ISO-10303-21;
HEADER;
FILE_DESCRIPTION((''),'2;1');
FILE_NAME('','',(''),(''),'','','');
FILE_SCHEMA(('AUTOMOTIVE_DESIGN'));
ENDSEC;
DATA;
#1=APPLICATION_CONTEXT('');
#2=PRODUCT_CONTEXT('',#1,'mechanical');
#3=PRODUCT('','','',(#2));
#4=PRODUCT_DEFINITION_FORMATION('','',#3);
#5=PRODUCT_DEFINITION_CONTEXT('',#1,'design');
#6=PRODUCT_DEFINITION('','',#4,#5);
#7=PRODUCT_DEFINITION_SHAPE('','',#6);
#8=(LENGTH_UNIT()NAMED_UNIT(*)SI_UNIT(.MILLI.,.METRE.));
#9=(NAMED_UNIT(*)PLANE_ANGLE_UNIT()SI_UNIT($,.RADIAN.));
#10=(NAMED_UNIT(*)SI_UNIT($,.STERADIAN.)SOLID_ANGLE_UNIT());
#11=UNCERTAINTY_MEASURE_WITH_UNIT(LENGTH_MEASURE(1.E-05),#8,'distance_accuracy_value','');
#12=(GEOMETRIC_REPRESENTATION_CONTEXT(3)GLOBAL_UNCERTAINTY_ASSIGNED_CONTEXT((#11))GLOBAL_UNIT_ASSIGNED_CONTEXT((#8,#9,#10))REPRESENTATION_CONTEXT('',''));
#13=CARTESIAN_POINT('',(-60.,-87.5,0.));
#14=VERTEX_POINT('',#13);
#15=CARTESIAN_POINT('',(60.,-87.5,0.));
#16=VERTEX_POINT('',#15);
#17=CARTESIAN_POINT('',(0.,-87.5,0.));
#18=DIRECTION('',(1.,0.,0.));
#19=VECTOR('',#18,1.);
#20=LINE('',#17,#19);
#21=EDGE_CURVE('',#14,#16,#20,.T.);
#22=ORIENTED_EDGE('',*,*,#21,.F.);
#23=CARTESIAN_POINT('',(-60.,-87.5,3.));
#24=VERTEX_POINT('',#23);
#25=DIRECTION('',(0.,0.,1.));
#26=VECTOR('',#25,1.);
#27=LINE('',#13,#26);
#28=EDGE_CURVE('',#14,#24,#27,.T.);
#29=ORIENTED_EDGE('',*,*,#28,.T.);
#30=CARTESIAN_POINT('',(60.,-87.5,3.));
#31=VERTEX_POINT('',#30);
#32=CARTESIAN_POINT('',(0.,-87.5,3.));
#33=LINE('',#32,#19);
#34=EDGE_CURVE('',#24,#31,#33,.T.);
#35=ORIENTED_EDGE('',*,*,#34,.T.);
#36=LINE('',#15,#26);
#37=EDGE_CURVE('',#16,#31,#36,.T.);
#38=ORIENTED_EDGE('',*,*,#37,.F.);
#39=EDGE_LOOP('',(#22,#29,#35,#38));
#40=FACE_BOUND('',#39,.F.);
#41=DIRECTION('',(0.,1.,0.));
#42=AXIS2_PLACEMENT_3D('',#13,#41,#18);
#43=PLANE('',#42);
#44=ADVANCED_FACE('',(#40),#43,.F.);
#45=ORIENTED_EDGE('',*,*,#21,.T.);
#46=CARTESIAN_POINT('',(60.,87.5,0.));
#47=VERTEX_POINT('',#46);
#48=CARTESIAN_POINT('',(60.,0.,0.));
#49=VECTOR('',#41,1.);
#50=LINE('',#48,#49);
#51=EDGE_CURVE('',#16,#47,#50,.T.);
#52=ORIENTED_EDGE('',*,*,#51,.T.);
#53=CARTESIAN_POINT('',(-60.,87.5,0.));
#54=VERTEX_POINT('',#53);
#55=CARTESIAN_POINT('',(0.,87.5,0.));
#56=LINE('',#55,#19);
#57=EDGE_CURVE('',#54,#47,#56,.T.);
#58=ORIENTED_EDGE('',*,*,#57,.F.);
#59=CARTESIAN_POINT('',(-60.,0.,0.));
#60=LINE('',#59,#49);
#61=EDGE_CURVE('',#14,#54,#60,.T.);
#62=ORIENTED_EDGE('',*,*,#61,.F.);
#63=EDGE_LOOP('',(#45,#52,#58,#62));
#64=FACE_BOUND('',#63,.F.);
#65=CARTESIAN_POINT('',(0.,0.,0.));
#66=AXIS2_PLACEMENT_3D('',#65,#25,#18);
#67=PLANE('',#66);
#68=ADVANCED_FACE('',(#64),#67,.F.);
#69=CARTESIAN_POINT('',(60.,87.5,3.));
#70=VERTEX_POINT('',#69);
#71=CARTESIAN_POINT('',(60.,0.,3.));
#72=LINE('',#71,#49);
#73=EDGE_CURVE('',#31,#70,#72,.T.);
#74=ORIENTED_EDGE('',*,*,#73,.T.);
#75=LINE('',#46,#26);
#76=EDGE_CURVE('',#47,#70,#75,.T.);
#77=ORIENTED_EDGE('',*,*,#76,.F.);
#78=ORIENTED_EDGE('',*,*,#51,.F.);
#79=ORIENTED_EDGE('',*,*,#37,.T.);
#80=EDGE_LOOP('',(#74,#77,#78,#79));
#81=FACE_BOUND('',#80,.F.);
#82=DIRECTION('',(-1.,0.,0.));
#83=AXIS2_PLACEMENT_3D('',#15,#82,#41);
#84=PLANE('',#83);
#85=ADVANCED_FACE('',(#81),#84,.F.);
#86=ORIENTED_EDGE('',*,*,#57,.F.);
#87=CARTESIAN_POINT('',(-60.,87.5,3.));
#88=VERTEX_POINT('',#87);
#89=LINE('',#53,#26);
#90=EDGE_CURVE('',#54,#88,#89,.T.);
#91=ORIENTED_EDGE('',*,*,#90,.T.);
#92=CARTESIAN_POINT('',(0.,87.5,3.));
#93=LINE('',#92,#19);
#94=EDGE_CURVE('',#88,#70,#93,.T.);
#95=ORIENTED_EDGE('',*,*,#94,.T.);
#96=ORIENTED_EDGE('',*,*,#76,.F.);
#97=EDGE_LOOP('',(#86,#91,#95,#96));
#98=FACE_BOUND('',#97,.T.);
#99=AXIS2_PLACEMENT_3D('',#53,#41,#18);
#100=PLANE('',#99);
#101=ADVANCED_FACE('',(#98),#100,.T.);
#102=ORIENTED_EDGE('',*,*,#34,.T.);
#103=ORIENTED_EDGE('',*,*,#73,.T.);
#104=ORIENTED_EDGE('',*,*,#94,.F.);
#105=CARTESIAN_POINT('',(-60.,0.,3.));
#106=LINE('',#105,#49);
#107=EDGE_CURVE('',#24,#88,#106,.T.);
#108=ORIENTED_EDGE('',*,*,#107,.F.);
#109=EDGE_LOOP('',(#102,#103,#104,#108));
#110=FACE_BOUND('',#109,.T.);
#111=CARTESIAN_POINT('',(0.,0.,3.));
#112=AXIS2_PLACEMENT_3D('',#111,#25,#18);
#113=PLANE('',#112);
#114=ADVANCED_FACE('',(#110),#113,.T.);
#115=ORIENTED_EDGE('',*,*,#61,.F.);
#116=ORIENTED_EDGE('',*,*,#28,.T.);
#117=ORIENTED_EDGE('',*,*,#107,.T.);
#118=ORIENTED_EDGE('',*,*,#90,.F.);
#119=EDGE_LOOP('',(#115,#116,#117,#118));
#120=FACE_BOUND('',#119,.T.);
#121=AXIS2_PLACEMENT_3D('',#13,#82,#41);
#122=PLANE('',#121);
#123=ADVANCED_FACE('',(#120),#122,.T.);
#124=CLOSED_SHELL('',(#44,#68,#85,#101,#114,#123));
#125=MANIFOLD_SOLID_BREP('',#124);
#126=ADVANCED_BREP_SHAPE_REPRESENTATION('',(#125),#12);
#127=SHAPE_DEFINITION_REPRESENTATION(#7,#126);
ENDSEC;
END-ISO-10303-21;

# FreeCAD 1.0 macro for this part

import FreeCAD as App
import Part
import Sketcher

V = App.Vector
Q = App.Units.Quantity


def add_polygon(sketch, points):
    """Adds a closed chain of lines whose ends are joined by coincident constraints."""
    first, n = sketch.GeometryCount, len(points)
    for a, b in zip(points, points[1:] + points[:1]):
        sketch.addGeometry(Part.LineSegment(App.Vector(*a, 0), App.Vector(*b, 0)), False)
    for i in range(n):
        sketch.addConstraint(Sketcher.Constraint("Coincident", first + i, 2, first + (i + 1) % n, 1))

doc = App.newDocument("Part")
body = doc.addObject("PartDesign::Body", "Body")

# Sketch on XY plane
sketch1 = body.newObject("Sketcher::SketchObject", "Sketch")
sketch1.AttachmentSupport = (doc.getObject("XY_Plane"), [""])
sketch1.MapMode = "FlatFace"
add_polygon(sketch1, [(-60, 88), (-60, -88), (60, -88), (60, 88)])  # lines 0-3
sketch1.addConstraint([
    Sketcher.Constraint("Vertical", 0),
    Sketcher.Constraint("Horizontal", 1),
    Sketcher.Constraint("Vertical", 2),
    Sketcher.Constraint("Horizontal", 3),
    Sketcher.Constraint("Symmetric", 0, 2, 2, 2, -1, 1),
    Sketcher.Constraint("DistanceX", 1, 1, 1, 2, Q("120 mm")),
    Sketcher.Constraint("DistanceY", 0, 2, 0, 1, Q("175 mm")),
])
pad1 = body.newObject("PartDesign::Pad", "Pad")
pad1.Profile = sketch1
pad1.Length = 3

doc.recompute()
